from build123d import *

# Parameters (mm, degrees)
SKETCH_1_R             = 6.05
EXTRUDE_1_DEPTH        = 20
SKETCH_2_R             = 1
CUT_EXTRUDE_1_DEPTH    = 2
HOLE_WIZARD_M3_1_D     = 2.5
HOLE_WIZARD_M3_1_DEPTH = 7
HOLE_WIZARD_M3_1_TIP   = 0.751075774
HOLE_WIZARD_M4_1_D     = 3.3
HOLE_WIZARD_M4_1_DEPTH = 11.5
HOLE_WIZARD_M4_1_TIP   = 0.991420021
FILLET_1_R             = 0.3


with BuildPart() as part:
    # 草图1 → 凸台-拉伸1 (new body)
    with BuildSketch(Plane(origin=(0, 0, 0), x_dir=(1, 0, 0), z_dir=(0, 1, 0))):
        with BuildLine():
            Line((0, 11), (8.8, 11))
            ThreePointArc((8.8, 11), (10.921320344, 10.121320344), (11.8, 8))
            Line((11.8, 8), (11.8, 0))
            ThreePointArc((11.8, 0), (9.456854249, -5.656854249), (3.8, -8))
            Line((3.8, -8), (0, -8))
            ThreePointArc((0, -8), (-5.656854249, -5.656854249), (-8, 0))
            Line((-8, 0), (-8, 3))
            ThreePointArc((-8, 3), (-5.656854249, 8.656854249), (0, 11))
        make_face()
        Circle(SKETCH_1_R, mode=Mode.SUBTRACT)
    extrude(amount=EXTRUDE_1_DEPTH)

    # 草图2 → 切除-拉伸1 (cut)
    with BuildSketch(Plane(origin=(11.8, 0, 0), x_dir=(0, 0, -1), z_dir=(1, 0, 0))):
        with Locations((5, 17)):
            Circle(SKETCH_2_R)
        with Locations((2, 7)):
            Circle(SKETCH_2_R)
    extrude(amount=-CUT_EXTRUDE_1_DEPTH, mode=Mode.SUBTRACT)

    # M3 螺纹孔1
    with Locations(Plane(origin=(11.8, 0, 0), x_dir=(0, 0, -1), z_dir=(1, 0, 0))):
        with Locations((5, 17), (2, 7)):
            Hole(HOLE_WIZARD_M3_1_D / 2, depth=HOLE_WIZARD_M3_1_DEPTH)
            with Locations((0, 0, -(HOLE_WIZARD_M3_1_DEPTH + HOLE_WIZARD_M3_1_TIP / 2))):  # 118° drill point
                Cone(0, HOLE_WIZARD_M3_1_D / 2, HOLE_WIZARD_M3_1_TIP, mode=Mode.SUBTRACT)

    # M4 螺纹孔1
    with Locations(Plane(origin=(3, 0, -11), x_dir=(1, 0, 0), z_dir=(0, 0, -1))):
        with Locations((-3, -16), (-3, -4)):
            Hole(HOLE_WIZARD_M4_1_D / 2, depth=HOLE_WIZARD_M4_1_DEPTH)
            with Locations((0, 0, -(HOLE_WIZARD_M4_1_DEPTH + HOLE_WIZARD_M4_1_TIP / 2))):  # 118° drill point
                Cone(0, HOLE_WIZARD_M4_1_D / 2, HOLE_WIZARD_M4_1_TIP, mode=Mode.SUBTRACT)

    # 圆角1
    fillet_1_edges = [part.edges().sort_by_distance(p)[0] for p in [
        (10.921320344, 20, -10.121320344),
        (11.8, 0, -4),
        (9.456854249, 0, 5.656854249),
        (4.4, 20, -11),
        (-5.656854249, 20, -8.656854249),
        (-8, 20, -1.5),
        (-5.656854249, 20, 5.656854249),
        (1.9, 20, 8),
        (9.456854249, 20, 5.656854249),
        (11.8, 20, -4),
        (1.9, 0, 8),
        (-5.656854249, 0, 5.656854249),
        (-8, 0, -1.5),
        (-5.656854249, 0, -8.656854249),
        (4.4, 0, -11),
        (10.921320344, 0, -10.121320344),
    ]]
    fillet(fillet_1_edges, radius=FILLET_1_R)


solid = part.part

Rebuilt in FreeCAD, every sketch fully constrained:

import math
import FreeCAD as App
import Part
import Sketcher
from FreeCAD import Vector


def edges_at(feature, points):
    """Names of the edges that pass closest to the given points."""
    edges = feature.Shape.Edges
    near = lambda p: min(range(len(edges)), key=lambda i: edges[i].distToShape(Part.Vertex(*p))[0])
    return sorted({f"Edge{near(p) + 1}" for p in points})

doc = App.newDocument("Part")
body = doc.addObject("PartDesign::Body", "Body")

sketch1 = doc.addObject("Sketcher::SketchObject", "Sketch")
body.addObject(sketch1)
sketch1.AttachmentSupport = (doc.XZ_Plane, [""])
sketch1.MapMode = "FlatFace"
sketch1.addGeometry([
    Part.LineSegment(Vector(8.8, -11, 0), Vector(0, -11, 0)),
    Part.ArcOfCircle(Part.Circle(Vector(0, -3, 0), Vector(0, 0, 1), 8), math.radians(-180), math.radians(-90)),
    Part.LineSegment(Vector(-8, -3, 0), Vector(-8, 0, 0)),
    Part.ArcOfCircle(Part.Circle(Vector(0, 0, 0), Vector(0, 0, 1), 8), math.radians(90), math.radians(180)),
    Part.LineSegment(Vector(0, 8, 0), Vector(3.8, 8, 0)),
    Part.ArcOfCircle(Part.Circle(Vector(3.8, 0, 0), Vector(0, 0, 1), 8), math.radians(0), math.radians(90)),
    Part.LineSegment(Vector(11.8, 0, 0), Vector(11.8, -8, 0)),
    Part.ArcOfCircle(Part.Circle(Vector(8.8, -8, 0), Vector(0, 0, 1), 3), math.radians(-90), math.radians(0)),
    Part.Circle(Vector(0, 0, 0), Vector(0, 0, 1), 6),
], False)
sketch1.addConstraint([
    Sketcher.Constraint("Tangent", 0, 2, 1, 2),
    Sketcher.Constraint("Tangent", 1, 1, 2, 1),
    Sketcher.Constraint("Tangent", 2, 2, 3, 2),
    Sketcher.Constraint("Tangent", 3, 1, 4, 1),
    Sketcher.Constraint("Tangent", 4, 2, 5, 2),
    Sketcher.Constraint("Tangent", 5, 1, 6, 1),
    Sketcher.Constraint("Tangent", 6, 2, 7, 2),
    Sketcher.Constraint("Tangent", 7, 1, 0, 1),
    Sketcher.Constraint("Horizontal", 0),
    Sketcher.Constraint("Vertical", 2),
    Sketcher.Constraint("Horizontal", 4),
    Sketcher.Constraint("Vertical", 6),
    Sketcher.Constraint("Coincident", 3, 3, -1, 1),
    Sketcher.Constraint("Coincident", 8, 3, -1, 1),
    Sketcher.Constraint("Equal", 1, 3),
    Sketcher.Constraint("Equal", 3, 5),
    Sketcher.Constraint("Radius", 1, 8.0),
    Sketcher.Constraint("Radius", 7, 3.0),
    Sketcher.Constraint("Diameter", 8, 12.1),
    Sketcher.Constraint("DistanceY", 2, 1, 2, 2, 3.0),
    Sketcher.Constraint("DistanceX", 0, 2, 0, 1, 8.8),
])
pad1 = doc.addObject("PartDesign::Pad", "Pad")
body.addObject(pad1)
pad1.Profile = sketch1
pad1.Length = 20
pad1.Reversed = True

sketch2 = doc.addObject("Sketcher::SketchObject", "Sketch001")
body.addObject(sketch2)
sketch2.AttachmentSupport = (doc.YZ_Plane, [""])
sketch2.MapMode = "FlatFace"
sketch2.AttachmentOffset = App.Placement(Vector(0, 0, 11.8), App.Rotation())
sketch2.addGeometry([
    Part.Circle(Vector(17, -5, 0), Vector(0, 0, 1), 1),
    Part.Circle(Vector(7, -2, 0), Vector(0, 0, 1), 1),
], False)
sketch2.addConstraint([
    Sketcher.Constraint("Equal", 0, 1),
    Sketcher.Constraint("Diameter", 0, 2.0),
    Sketcher.Constraint("DistanceX", -1, 1, 0, 3, 17.0),
    Sketcher.Constraint("DistanceY", 0, 3, -1, 1, 5.0),
    Sketcher.Constraint("DistanceX", -1, 1, 1, 3, 7.0),
    Sketcher.Constraint("DistanceY", 1, 3, -1, 1, 2.0),
])
pocket1 = doc.addObject("PartDesign::Pocket", "Pocket")
body.addObject(pocket1)
pocket1.Profile = sketch2
pocket1.Length = 2

sketch3 = doc.addObject("Sketcher::SketchObject", "Sketch002")
body.addObject(sketch3)
sketch3.AttachmentSupport = (doc.YZ_Plane, [""])
sketch3.MapMode = "FlatFace"
sketch3.AttachmentOffset = App.Placement(Vector(0, 0, 11.8), App.Rotation())
sketch3.addGeometry([
    Part.Circle(Vector(17, -5, 0), Vector(0, 0, 1), 1.2),
    Part.Circle(Vector(7, -2, 0), Vector(0, 0, 1), 1.2),
], False)
sketch3.addConstraint([
    Sketcher.Constraint("Equal", 0, 1),
    Sketcher.Constraint("Diameter", 0, 2.5),
    Sketcher.Constraint("DistanceX", -1, 1, 0, 3, 17.0),
    Sketcher.Constraint("DistanceY", 0, 3, -1, 1, 5.0),
    Sketcher.Constraint("DistanceX", -1, 1, 1, 3, 7.0),
    Sketcher.Constraint("DistanceY", 1, 3, -1, 1, 2.0),
])
doc.recompute()
hole = doc.addObject("PartDesign::Hole", "Hole")
body.addObject(hole)
hole.Profile = sketch3
hole.ThreadType = "None"
hole.Diameter = 2.5
hole.DepthType = "Dimension"
hole.Depth = 7
hole.DrillPoint = "Angled"
hole.DrillPointAngle = 118

sketch4 = doc.addObject("Sketcher::SketchObject", "Sketch003")
body.addObject(sketch4)
sketch4.AttachmentSupport = (doc.XY_Plane, [""])
sketch4.MapMode = "FlatFace"
sketch4.AttachmentOffset = App.Placement(Vector(0, 0, -11), App.Rotation())
sketch4.addGeometry([
    Part.Circle(Vector(0, 16, 0), Vector(0, 0, 1), 1.6),
    Part.Circle(Vector(0, 4, 0), Vector(0, 0, 1), 1.6),
], False)
sketch4.addConstraint([
    Sketcher.Constraint("Equal", 0, 1),
    Sketcher.Constraint("PointOnObject", 0, 3, -2),
    Sketcher.Constraint("PointOnObject", 1, 3, -2),
    Sketcher.Constraint("Diameter", 0, 3.3),
    Sketcher.Constraint("DistanceY", -1, 1, 0, 3, 16.0),
    Sketcher.Constraint("DistanceY", -1, 1, 1, 3, 4.0),
])
doc.recompute()
hole2 = doc.addObject("PartDesign::Hole", "Hole001")
body.addObject(hole2)
hole2.Profile = sketch4
hole2.ThreadType = "None"
hole2.Diameter = 3.3
hole2.DepthType = "Dimension"
hole2.Depth = 11.5
hole2.DrillPoint = "Angled"
hole2.DrillPointAngle = 118
hole2.Reversed = True
doc.recompute()

fillet = doc.addObject("PartDesign::Fillet", "Fillet")
body.addObject(fillet)
fillet.Base = (hole2, edges_at(hole2, [
    (10.921, 20, -10.121),
    (11.8, 0, -4),
    (9.457, 0, 5.657),
    (4.4, 20, -11),
    (-5.657, 20, -8.657),
    (-8, 20, -1.5),
    (-5.657, 20, 5.657),
    (1.9, 20, 8),
    (9.457, 20, 5.657),
    (11.8, 20, -4),
    (1.9, 0, 8),
    (-5.657, 0, 5.657),
    (-8, 0, -1.5),
    (-5.657, 0, -8.657),
    (4.4, 0, -11),
    (10.921, 0, -10.121),
]))
fillet.Radius = 0.3

doc.recompute()
